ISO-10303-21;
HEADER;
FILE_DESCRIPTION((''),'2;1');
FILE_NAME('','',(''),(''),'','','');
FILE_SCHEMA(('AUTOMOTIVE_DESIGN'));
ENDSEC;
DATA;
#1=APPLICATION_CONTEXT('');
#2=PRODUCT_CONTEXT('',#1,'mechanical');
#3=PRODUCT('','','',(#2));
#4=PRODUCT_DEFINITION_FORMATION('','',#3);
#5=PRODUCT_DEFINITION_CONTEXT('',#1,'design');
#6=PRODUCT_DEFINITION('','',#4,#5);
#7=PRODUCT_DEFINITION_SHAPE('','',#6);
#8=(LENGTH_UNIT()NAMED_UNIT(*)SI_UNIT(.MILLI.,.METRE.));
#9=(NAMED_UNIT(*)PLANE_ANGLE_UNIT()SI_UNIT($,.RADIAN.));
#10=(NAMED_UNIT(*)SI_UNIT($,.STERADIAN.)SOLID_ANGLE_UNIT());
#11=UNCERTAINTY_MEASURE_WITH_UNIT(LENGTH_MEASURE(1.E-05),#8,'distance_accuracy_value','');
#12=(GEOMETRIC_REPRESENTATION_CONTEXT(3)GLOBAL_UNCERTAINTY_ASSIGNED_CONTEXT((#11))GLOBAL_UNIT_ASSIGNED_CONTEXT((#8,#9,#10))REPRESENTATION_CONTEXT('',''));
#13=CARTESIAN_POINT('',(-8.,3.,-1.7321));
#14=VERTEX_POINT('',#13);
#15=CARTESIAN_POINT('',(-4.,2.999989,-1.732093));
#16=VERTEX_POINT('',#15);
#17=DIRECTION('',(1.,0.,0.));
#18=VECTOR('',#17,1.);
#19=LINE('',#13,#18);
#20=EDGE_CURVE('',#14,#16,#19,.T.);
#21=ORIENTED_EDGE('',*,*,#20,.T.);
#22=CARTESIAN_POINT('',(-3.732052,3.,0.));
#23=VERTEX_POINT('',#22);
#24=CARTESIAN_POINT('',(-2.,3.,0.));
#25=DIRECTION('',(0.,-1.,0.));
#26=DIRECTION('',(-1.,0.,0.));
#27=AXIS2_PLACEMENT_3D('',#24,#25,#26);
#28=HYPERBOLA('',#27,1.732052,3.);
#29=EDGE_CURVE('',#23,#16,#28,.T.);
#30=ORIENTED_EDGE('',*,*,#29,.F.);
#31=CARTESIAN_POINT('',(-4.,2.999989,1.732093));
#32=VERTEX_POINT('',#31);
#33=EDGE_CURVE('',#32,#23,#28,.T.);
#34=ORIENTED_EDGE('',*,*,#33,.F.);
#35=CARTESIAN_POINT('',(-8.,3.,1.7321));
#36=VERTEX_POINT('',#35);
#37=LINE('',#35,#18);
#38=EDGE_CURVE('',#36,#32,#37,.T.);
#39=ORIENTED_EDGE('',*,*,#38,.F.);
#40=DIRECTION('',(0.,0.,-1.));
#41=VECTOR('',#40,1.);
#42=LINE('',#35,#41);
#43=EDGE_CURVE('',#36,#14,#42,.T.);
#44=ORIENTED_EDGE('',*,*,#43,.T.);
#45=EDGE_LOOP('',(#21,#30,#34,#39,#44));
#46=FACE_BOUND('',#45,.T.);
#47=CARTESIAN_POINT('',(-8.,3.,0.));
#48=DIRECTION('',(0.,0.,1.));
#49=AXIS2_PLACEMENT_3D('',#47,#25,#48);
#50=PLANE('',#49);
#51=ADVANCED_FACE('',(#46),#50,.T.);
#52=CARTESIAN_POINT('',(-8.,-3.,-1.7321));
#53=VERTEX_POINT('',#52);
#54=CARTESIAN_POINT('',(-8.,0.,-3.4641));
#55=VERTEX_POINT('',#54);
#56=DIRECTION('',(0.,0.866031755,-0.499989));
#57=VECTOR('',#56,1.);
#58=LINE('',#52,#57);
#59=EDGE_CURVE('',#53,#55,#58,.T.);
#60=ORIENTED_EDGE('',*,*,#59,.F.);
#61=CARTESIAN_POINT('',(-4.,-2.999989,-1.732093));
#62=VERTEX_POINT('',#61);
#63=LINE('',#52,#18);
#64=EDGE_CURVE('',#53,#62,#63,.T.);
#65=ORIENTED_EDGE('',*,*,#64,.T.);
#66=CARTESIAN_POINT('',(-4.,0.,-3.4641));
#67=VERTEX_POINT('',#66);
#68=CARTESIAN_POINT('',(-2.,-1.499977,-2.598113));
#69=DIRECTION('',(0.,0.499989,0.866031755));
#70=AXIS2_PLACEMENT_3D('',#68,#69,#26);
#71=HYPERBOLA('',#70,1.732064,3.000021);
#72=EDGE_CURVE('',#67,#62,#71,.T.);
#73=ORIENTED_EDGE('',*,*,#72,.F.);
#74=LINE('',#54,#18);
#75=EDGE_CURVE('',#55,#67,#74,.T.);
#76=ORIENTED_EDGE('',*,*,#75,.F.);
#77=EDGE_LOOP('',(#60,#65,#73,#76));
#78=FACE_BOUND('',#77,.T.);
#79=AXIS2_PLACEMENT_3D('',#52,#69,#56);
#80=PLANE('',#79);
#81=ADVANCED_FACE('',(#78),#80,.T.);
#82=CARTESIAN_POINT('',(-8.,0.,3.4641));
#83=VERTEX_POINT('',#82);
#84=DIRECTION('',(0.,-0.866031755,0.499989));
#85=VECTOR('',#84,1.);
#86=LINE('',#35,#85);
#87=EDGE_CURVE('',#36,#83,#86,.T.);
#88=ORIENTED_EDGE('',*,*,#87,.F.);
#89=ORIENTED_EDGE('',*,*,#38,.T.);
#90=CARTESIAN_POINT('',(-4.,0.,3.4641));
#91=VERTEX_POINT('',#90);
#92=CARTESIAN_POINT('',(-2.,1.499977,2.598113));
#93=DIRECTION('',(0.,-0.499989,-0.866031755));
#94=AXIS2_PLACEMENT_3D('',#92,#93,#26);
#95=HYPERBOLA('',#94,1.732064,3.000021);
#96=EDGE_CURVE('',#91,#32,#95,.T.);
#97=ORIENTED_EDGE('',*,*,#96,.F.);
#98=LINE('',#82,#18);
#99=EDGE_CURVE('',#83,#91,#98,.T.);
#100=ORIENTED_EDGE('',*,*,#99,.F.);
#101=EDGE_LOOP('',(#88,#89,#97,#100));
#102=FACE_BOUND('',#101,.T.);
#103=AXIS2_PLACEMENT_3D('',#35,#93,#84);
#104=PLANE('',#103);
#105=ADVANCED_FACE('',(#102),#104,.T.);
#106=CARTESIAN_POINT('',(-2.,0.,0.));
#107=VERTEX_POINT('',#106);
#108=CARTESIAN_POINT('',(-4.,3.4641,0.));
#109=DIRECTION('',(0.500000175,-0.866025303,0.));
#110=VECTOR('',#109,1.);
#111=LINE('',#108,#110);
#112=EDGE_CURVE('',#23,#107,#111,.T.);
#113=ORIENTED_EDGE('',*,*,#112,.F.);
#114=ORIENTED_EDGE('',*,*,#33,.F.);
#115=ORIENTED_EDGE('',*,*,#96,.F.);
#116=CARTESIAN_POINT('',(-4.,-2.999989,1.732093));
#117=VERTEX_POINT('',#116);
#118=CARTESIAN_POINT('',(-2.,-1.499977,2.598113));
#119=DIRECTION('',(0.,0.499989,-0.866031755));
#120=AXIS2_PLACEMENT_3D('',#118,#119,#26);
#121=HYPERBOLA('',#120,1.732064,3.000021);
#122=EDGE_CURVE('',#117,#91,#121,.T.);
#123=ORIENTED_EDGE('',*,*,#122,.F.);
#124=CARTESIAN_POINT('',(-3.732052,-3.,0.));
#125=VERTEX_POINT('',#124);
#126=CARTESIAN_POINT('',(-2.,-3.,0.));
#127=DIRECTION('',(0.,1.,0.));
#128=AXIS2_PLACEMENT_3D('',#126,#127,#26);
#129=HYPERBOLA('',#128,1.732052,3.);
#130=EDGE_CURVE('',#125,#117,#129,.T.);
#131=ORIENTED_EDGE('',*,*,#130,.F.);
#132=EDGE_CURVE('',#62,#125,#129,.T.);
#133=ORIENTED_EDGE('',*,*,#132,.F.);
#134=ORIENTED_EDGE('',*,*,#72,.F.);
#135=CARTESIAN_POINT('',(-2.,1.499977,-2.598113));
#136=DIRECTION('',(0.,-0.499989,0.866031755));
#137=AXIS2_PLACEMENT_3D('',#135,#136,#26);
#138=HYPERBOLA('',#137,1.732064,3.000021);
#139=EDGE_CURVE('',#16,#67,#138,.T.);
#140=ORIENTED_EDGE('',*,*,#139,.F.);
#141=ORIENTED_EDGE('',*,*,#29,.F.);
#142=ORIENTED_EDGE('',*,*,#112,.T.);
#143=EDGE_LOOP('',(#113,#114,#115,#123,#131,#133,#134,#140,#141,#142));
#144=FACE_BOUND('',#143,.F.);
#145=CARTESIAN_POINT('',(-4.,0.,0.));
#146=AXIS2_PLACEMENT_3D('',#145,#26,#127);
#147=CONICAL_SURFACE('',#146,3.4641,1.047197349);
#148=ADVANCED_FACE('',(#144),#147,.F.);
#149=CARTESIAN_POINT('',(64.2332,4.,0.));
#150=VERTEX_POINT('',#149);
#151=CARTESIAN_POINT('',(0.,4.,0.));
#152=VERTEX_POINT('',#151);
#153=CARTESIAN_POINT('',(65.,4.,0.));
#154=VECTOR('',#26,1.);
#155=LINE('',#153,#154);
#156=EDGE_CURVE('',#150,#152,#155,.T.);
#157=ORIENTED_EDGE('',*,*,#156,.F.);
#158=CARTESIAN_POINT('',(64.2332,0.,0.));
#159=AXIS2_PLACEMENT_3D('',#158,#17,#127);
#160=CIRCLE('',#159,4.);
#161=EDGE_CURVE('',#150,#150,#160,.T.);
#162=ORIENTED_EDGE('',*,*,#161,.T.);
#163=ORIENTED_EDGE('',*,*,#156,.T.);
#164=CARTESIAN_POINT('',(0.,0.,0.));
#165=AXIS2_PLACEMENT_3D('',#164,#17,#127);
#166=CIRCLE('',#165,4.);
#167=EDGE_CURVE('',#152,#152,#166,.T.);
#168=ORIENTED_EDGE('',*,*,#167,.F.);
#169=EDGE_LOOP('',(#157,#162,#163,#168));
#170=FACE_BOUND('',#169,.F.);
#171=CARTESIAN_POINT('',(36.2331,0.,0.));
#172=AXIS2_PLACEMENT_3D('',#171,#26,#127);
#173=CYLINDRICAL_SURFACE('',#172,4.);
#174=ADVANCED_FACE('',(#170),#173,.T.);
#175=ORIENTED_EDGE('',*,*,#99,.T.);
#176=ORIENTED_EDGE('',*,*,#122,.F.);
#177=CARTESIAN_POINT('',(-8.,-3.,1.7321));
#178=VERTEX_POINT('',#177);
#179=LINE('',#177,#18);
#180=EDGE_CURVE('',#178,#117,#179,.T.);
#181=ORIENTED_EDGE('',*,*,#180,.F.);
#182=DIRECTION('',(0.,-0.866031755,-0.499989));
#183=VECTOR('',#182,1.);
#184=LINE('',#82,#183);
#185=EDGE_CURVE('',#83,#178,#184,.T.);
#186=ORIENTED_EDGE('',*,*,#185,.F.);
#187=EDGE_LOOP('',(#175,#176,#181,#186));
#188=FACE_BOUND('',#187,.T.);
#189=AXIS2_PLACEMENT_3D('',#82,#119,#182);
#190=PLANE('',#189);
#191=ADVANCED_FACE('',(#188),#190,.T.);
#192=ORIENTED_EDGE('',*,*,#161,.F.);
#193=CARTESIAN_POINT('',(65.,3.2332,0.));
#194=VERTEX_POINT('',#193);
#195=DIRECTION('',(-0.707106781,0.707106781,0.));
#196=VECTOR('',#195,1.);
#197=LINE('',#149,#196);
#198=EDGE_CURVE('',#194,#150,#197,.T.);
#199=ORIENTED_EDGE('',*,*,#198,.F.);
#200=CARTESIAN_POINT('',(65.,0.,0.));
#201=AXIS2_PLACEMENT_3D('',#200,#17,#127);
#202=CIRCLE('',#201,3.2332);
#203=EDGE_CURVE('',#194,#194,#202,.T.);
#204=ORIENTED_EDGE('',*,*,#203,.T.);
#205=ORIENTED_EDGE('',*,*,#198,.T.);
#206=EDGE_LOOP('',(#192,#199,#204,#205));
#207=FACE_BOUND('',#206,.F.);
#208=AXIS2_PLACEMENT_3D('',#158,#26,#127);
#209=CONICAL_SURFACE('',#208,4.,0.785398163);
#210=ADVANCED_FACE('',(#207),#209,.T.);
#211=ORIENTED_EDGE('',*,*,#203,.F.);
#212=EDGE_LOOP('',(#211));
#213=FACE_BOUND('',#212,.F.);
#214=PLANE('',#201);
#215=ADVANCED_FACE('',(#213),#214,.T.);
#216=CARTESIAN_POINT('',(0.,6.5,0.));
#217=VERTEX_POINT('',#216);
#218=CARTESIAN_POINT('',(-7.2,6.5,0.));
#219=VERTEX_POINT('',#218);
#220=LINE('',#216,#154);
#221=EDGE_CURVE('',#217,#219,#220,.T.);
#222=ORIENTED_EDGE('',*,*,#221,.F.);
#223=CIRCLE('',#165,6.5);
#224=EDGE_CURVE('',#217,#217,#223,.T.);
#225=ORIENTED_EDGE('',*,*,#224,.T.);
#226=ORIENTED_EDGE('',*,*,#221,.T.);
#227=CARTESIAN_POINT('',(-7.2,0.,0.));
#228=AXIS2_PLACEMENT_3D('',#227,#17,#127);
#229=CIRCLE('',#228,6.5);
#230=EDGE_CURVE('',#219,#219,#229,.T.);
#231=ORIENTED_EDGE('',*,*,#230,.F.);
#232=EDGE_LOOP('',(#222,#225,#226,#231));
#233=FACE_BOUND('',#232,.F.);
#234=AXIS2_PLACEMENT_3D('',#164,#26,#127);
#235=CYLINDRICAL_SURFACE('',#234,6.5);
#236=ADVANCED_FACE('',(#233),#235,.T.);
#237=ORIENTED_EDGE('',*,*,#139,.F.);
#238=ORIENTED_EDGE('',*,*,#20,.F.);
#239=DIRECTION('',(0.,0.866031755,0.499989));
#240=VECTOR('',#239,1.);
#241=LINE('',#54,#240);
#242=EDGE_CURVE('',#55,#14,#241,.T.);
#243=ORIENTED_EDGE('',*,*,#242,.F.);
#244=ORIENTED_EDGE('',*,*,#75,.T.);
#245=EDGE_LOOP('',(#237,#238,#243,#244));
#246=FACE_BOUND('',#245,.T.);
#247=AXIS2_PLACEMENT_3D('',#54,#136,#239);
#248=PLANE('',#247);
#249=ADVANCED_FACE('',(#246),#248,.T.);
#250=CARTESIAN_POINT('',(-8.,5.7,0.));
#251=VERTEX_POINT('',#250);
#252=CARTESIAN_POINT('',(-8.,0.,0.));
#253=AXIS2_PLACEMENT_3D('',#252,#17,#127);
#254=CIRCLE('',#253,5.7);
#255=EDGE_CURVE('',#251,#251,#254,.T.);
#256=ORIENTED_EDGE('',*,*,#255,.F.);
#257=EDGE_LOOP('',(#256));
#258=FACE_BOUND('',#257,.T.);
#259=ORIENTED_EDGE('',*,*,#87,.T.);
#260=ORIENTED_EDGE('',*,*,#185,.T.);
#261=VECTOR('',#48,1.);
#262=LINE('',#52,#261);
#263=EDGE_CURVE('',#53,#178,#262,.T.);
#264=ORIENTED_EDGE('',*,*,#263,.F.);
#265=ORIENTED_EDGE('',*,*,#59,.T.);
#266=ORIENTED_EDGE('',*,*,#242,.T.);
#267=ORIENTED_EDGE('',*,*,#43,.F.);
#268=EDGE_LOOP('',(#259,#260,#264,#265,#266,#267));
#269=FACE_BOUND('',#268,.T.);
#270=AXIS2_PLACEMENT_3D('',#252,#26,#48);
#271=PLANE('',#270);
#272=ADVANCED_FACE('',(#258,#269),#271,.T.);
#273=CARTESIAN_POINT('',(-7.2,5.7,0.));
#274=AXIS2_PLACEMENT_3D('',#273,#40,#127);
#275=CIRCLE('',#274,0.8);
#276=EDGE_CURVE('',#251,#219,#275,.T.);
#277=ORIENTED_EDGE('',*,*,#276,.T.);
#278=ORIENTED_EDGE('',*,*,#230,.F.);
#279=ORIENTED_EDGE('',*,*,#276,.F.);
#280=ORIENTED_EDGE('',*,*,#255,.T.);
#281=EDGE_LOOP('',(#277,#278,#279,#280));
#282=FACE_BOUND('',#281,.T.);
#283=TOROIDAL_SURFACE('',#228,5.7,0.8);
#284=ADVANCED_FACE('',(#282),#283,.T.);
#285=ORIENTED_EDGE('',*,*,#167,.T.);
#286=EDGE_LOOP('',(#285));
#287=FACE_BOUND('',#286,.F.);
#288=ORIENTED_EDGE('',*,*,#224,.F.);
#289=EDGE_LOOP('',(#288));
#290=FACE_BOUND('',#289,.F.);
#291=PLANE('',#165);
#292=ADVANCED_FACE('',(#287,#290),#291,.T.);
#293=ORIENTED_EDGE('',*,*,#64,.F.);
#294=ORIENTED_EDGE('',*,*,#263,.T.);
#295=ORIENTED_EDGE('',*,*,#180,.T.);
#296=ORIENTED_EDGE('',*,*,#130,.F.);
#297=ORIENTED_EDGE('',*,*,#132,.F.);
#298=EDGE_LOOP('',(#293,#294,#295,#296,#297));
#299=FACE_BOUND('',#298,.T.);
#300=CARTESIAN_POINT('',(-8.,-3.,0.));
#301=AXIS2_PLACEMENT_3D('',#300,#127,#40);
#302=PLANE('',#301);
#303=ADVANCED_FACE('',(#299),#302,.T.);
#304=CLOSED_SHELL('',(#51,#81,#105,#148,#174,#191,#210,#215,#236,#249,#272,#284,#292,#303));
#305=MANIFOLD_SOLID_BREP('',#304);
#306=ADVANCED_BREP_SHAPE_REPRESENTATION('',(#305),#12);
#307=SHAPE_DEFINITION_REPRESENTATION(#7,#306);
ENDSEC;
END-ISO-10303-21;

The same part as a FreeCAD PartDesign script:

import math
import FreeCAD as App
import Part
import Sketcher
Q = App.Units.Quantity


def edges_at(feature, points):
    """Names of the edges that pass closest to the given points."""
    edges = feature.Shape.Edges
    near = lambda p: min(range(len(edges)), key=lambda i: edges[i].distToShape(Part.Vertex(*p))[0])
    return sorted({f"Edge{near(p) + 1}" for p in points})


def add_polygon(sketch, points):
    """Adds a closed chain of lines whose ends are joined by coincident constraints."""
    first, n = sketch.GeometryCount, len(points)
    for a, b in zip(points, points[1:] + points[:1]):
        sketch.addGeometry(Part.LineSegment(App.Vector(*a, 0), App.Vector(*b, 0)), False)
    for i in range(n):
        sketch.addConstraint(Sketcher.Constraint("Coincident", first + i, 2, first + (i + 1) % n, 1))

doc = App.newDocument("Part")
body = doc.addObject("PartDesign::Body", "Body")

# Sketch on XY plane
sketch1 = body.newObject("Sketcher::SketchObject", "Sketch")
sketch1.AttachmentSupport = (doc.getObject("XY_Plane"), [""])
sketch1.MapMode = "FlatFace"
add_polygon(sketch1, [(-4, 3.4641), (-2, 0), (65, 0), (65, 4), (0, 4), (0, 6.5), (-8, 6.5), (-8, 3.4641)])  # lines 0-7
sketch1.addConstraint([
    Sketcher.Constraint("Horizontal", 1),
    Sketcher.Constraint("Vertical", 2),
    Sketcher.Constraint("Horizontal", 3),
    Sketcher.Constraint("Vertical", 4),
    Sketcher.Constraint("Horizontal", 5),
    Sketcher.Constraint("Vertical", 6),
    Sketcher.Constraint("Horizontal", 7),
    Sketcher.Constraint("PointOnObject", 0, 2, -1),
    Sketcher.Constraint("PointOnObject", 3, 2, -2),
    Sketcher.Constraint("Equal", 7, 2),
    Sketcher.Constraint("DistanceX", 3, 2, 3, 1, 65.0),
    Sketcher.Constraint("DistanceX", 5, 2, 5, 1, 8.0),
    Sketcher.Constraint("DistanceX", 7, 1, 7, 2, 4.0),
    Sketcher.Constraint("Angle", 0, Q("-60 deg")),
    Sketcher.Constraint("Distance", 0, 4.0),
    Sketcher.Constraint("DistanceY", 4, 1, 4, 2, 2.5),
])
revolution = body.newObject("PartDesign::Revolution", "Revolution")
revolution.Profile = sketch1
revolution.ReferenceAxis = (sketch1, ["H_Axis"])
revolution.Angle = 360

# Sketch on YZ plane
sketch2 = body.newObject("Sketcher::SketchObject", "Sketch001")
sketch2.AttachmentSupport = (doc.getObject("YZ_Plane"), [""])
sketch2.MapMode = "FlatFace"
sketch2.AttachmentOffset = App.Placement(App.Vector(0, 0, -8), App.Rotation())
sketch2.addGeometry([
    Part.LineSegment(App.Vector(3, 1.7321, 0), App.Vector(0, 3.4641, 0)),  # 0
    Part.ArcOfCircle(Part.Circle(App.Vector(0, 0, 0), App.Vector(0, 0, 1), 3.4641), math.radians(30.000705), math.radians(90)),  # 1
    Part.ArcOfCircle(Part.Circle(App.Vector(0, 0, 0), App.Vector(0, 0, 1), 3.4641), math.radians(90), math.radians(149.999295)),  # 2
    Part.LineSegment(App.Vector(0, 3.4641, 0), App.Vector(-3, 1.7321, 0)),  # 3
    Part.ArcOfCircle(Part.Circle(App.Vector(0, 0, 0), App.Vector(0, 0, 1), 3.4641), math.radians(-30.000705), math.radians(30.000705)),  # 4
    Part.LineSegment(App.Vector(3, 1.7321, 0), App.Vector(3, -1.7321, 0)),  # 5
    Part.LineSegment(App.Vector(-3, 1.7321, 0), App.Vector(-3, -1.7321, 0)),  # 6
    Part.ArcOfCircle(Part.Circle(App.Vector(0, 0, 0), App.Vector(0, 0, 1), 3.4641), math.radians(149.999295), math.radians(210.000705)),  # 7
    Part.LineSegment(App.Vector(-3, -1.7321, 0), App.Vector(0, -3.4641, 0)),  # 8
    Part.ArcOfCircle(Part.Circle(App.Vector(0, 0, 0), App.Vector(0, 0, 1), 3.4641), math.radians(-149.999295), math.radians(-90)),  # 9
    Part.ArcOfCircle(Part.Circle(App.Vector(0, 0, 0), App.Vector(0, 0, 1), 3.4641), math.radians(-90), math.radians(-30.000705)),  # 10
    Part.LineSegment(App.Vector(0, -3.4641, 0), App.Vector(3, -1.7321, 0)),  # 11
], False)
sketch2.addConstraint([
    Sketcher.Constraint("Coincident", 0, 1, 1, 1),
    Sketcher.Constraint("Coincident", 1, 2, 0, 2),
    Sketcher.Constraint("Coincident", 2, 1, 3, 1),
    Sketcher.Constraint("Coincident", 3, 2, 2, 2),
    Sketcher.Constraint("Coincident", 4, 1, 5, 2),
    Sketcher.Constraint("Coincident", 5, 1, 4, 2),
    Sketcher.Constraint("Coincident", 6, 1, 7, 1),
    Sketcher.Constraint("Coincident", 7, 2, 6, 2),
    Sketcher.Constraint("Coincident", 8, 1, 9, 1),
    Sketcher.Constraint("Coincident", 9, 2, 8, 2),
    Sketcher.Constraint("Coincident", 10, 1, 11, 1),
    Sketcher.Constraint("Coincident", 11, 2, 10, 2),
    Sketcher.Constraint("Vertical", 5),
    Sketcher.Constraint("Vertical", 6),
    Sketcher.Constraint("Coincident", 1, 3, -1, 1),
    Sketcher.Constraint("Coincident", 2, 3, -1, 1),
    Sketcher.Constraint("Coincident", 4, 3, -1, 1),
    Sketcher.Constraint("Coincident", 7, 3, -1, 1),
    Sketcher.Constraint("Coincident", 9, 3, -1, 1),
    Sketcher.Constraint("Coincident", 10, 3, -1, 1),
    Sketcher.Constraint("Coincident", 2, 1, 1, 2),
    Sketcher.Constraint("Coincident", 5, 1, 0, 1),
    Sketcher.Constraint("Coincident", 6, 1, 3, 2),
    Sketcher.Constraint("Coincident", 8, 1, 7, 2),
    Sketcher.Constraint("Coincident", 10, 1, 9, 2),
    Sketcher.Constraint("PointOnObject", 1, 2, -2),
    Sketcher.Constraint("PointOnObject", 9, 2, -2),
    Sketcher.Constraint("Parallel", 0, 8),
    Sketcher.Constraint("Parallel", 3, 11),
    Sketcher.Constraint("Angle", 0, Q("150.0007 deg")),
    Sketcher.Constraint("DistanceX", -1, 1, 0, 1, 3.0),
])
pad1 = body.newObject("PartDesign::Pad", "Pad")
pad1.Profile = sketch2
pad1.Length = 4.2679
doc.recompute()

fillet = body.newObject("PartDesign::Fillet", "Fillet")
fillet.Base = (pad1, edges_at(pad1, [(-8, -6.5, 0)]))
fillet.Radius = 0.8
doc.recompute()

chamfer = body.newObject("PartDesign::Chamfer", "Chamfer")
chamfer.Base = (fillet, edges_at(fillet, [(65, -4, 0)]))
chamfer.ChamferType = "Two distances"
chamfer.Size = 0.7668
chamfer.Size2 = 0.7668

doc.recompute()
